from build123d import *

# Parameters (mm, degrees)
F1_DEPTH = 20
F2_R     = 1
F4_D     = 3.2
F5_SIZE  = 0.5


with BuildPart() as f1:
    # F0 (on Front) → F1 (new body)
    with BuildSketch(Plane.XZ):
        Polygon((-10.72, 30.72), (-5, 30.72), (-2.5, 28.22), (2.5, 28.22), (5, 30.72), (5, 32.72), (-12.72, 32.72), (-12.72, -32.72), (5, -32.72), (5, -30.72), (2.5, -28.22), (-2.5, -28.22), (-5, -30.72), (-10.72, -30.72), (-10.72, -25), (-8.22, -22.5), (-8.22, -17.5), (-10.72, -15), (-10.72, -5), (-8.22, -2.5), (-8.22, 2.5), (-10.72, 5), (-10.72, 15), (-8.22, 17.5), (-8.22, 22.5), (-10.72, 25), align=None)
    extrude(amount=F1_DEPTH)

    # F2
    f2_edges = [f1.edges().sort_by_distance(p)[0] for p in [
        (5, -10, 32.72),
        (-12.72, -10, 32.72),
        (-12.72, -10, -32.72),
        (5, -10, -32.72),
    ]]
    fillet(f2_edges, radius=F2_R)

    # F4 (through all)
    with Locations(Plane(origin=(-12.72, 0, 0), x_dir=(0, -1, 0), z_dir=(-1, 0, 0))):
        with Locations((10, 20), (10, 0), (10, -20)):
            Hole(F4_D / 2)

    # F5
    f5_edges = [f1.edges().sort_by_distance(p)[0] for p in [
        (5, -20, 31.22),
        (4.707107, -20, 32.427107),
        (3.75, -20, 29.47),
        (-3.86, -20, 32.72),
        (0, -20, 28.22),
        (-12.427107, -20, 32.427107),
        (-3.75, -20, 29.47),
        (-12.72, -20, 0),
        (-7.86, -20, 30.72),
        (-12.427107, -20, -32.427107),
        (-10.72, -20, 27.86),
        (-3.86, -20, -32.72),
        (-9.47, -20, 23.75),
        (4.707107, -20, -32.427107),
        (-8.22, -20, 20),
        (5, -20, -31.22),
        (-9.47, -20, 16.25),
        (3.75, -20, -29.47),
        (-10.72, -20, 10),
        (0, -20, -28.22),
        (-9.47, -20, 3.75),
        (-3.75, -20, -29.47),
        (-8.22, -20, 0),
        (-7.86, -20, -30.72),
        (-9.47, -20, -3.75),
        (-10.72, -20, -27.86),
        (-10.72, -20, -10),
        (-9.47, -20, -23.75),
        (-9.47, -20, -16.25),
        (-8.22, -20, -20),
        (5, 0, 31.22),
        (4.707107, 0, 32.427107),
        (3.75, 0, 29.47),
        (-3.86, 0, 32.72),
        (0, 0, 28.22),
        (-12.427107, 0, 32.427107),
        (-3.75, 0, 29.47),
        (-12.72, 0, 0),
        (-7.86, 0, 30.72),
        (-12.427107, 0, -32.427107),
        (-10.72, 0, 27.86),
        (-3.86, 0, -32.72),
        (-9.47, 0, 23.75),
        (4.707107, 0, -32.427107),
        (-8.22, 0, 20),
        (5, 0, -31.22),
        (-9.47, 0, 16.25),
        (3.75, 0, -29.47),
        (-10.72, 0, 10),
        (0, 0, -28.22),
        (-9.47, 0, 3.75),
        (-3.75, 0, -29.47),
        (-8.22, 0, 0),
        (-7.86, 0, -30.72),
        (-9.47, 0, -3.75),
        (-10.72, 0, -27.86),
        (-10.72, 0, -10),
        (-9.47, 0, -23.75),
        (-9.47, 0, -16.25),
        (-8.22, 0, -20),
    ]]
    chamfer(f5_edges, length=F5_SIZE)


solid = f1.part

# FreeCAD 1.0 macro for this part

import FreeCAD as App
import Part
import Sketcher

V = App.Vector
Q = App.Units.Quantity


def edges_at(feature, points):
    """Names of the edges that pass closest to the given points."""
    edges = feature.Shape.Edges
    near = lambda p: min(range(len(edges)), key=lambda i: edges[i].distToShape(Part.Vertex(*p))[0])
    return sorted({f"Edge{near(p) + 1}" for p in points})

doc = App.newDocument("Part")
body = doc.addObject("PartDesign::Body", "Body")

# Sketch on XZ plane
sketch1 = body.newObject("Sketcher::SketchObject", "Sketch")
sketch1.AttachmentSupport = (doc.getObject("XZ_Plane"), [""])
sketch1.MapMode = "FlatFace"
sketch1.addGeometry([
    Part.LineSegment(V(-10.7, 30.7, 0), V(-5, 30.7, 0)),  # 0
    Part.LineSegment(V(-5, 30.7, 0), V(-2.5, 28.2, 0)),  # 1
    Part.LineSegment(V(-2.5, 28.2, 0), V(2.5, 28.2, 0)),  # 2
    Part.LineSegment(V(2.5, 28.2, 0), V(5, 30.7, 0)),  # 3
    Part.LineSegment(V(5, 30.7, 0), V(5, 32.7, 0)),  # 4
    Part.LineSegment(V(5, 32.7, 0), V(-12.7, 32.7, 0)),  # 5
    Part.LineSegment(V(-12.7, 32.7, 0), V(-12.7, -32.7, 0)),  # 6
    Part.LineSegment(V(-12.7, -32.7, 0), V(5, -32.7, 0)),  # 7
    Part.LineSegment(V(5, -32.7, 0), V(5, -30.7, 0)),  # 8
    Part.LineSegment(V(5, -30.7, 0), V(2.5, -28.2, 0)),  # 9
    Part.LineSegment(V(2.5, -28.2, 0), V(-2.5, -28.2, 0)),  # 10
    Part.LineSegment(V(-2.5, -28.2, 0), V(-5, -30.7, 0)),  # 11
    Part.LineSegment(V(-5, -30.7, 0), V(-10.7, -30.7, 0)),  # 12
    Part.LineSegment(V(-10.7, -30.7, 0), V(-10.7, -25, 0)),  # 13
    Part.LineSegment(V(-10.7, -25, 0), V(-8.2, -22.5, 0)),  # 14
    Part.LineSegment(V(-8.2, -22.5, 0), V(-8.2, -17.5, 0)),  # 15
    Part.LineSegment(V(-8.2, -17.5, 0), V(-10.7, -15, 0)),  # 16
    Part.LineSegment(V(-10.7, -15, 0), V(-10.7, -5, 0)),  # 17
    Part.LineSegment(V(-10.7, -5, 0), V(-8.2, -2.5, 0)),  # 18
    Part.LineSegment(V(-8.2, -2.5, 0), V(-8.2, 2.5, 0)),  # 19
    Part.LineSegment(V(-8.2, 2.5, 0), V(-10.7, 5, 0)),  # 20
    Part.LineSegment(V(-10.7, 5, 0), V(-10.7, 15, 0)),  # 21
    Part.LineSegment(V(-10.7, 15, 0), V(-8.2, 17.5, 0)),  # 22
    Part.LineSegment(V(-8.2, 17.5, 0), V(-8.2, 22.5, 0)),  # 23
    Part.LineSegment(V(-8.2, 22.5, 0), V(-10.7, 25, 0)),  # 24
    Part.LineSegment(V(-10.7, 25, 0), V(-10.7, 30.7, 0)),  # 25
], False)
sketch1.addConstraint([
    Sketcher.Constraint("Coincident", 0, 2, 1, 1),
    Sketcher.Constraint("Coincident", 1, 2, 2, 1),
    Sketcher.Constraint("Coincident", 2, 2, 3, 1),
    Sketcher.Constraint("Coincident", 3, 2, 4, 1),
    Sketcher.Constraint("Coincident", 4, 2, 5, 1),
    Sketcher.Constraint("Coincident", 5, 2, 6, 1),
    Sketcher.Constraint("Coincident", 6, 2, 7, 1),
    Sketcher.Constraint("Coincident", 7, 2, 8, 1),
    Sketcher.Constraint("Coincident", 8, 2, 9, 1),
    Sketcher.Constraint("Coincident", 9, 2, 10, 1),
    Sketcher.Constraint("Coincident", 10, 2, 11, 1),
    Sketcher.Constraint("Coincident", 11, 2, 12, 1),
    Sketcher.Constraint("Coincident", 12, 2, 13, 1),
    Sketcher.Constraint("Coincident", 13, 2, 14, 1),
    Sketcher.Constraint("Coincident", 14, 2, 15, 1),
    Sketcher.Constraint("Coincident", 15, 2, 16, 1),
    Sketcher.Constraint("Coincident", 16, 2, 17, 1),
    Sketcher.Constraint("Coincident", 17, 2, 18, 1),
    Sketcher.Constraint("Coincident", 18, 2, 19, 1),
    Sketcher.Constraint("Coincident", 19, 2, 20, 1),
    Sketcher.Constraint("Coincident", 20, 2, 21, 1),
    Sketcher.Constraint("Coincident", 21, 2, 22, 1),
    Sketcher.Constraint("Coincident", 22, 2, 23, 1),
    Sketcher.Constraint("Coincident", 23, 2, 24, 1),
    Sketcher.Constraint("Coincident", 24, 2, 25, 1),
    Sketcher.Constraint("Coincident", 25, 2, 0, 1),
    Sketcher.Constraint("Horizontal", 0),
    Sketcher.Constraint("Horizontal", 2),
    Sketcher.Constraint("Vertical", 4),
    Sketcher.Constraint("Horizontal", 5),
    Sketcher.Constraint("Vertical", 6),
    Sketcher.Constraint("Horizontal", 7),
    Sketcher.Constraint("Vertical", 8),
    Sketcher.Constraint("Horizontal", 10),
    Sketcher.Constraint("Horizontal", 12),
    Sketcher.Constraint("Vertical", 13),
    Sketcher.Constraint("Vertical", 15),
    Sketcher.Constraint("Vertical", 17),
    Sketcher.Constraint("Vertical", 19),
    Sketcher.Constraint("Vertical", 21),
    Sketcher.Constraint("Vertical", 23),
    Sketcher.Constraint("Vertical", 25),
    Sketcher.Constraint("Symmetric", 0, 2, 8, 2, -1, 1),
    Sketcher.Constraint("Symmetric", 1, 2, 9, 2, -1, 1),
    Sketcher.Constraint("Symmetric", 3, 2, 11, 2, -1, 1),
    Sketcher.Constraint("Symmetric", 0, 2, 3, 2, -2),
    Sketcher.Constraint("Symmetric", 17, 2, 20, 2, -1),
    Sketcher.Constraint("Symmetric", 15, 2, 22, 2, -1),
    Sketcher.Constraint("Symmetric", 13, 2, 24, 2, -1),
    Sketcher.Constraint("Perpendicular", 1, 3),
    Sketcher.Constraint("Perpendicular", 9, 11),
    Sketcher.Constraint("Parallel", 11, 14),
    Sketcher.Constraint("Perpendicular", 14, 16),
    Sketcher.Constraint("Perpendicular", 16, 18),
    Sketcher.Constraint("Perpendicular", 18, 20),
    Sketcher.Constraint("Perpendicular", 20, 22),
    Sketcher.Constraint("Perpendicular", 22, 24),
    Sketcher.Constraint("Vertical", 2, 2, 9, 2),
    Sketcher.Constraint("Vertical", 13, 2, 16, 2),
    Sketcher.Constraint("Vertical", 15, 2, 18, 2),
    Sketcher.Constraint("Equal", 4, 8),
    Sketcher.Constraint("Equal", 12, 13),
    Sketcher.Constraint("Equal", 10, 15),
    Sketcher.Constraint("Equal", 15, 19),
    Sketcher.Constraint("Equal", 11, 14),
    Sketcher.Constraint("DistanceX", 2, 1, 2, 2, Q("5 mm")),
    Sketcher.Constraint("DistanceY", 4, 1, 4, 2, Q("2 mm")),
    Sketcher.Constraint("DistanceY", 17, 1, 17, 2, Q("10 mm")),
    Sketcher.Constraint("DistanceX", 0, 2, -1, 1, Q("5 mm")),
    Sketcher.Constraint("DistanceX", 6, 2, 12, 2, Q("2 mm")),
    Sketcher.Constraint("DistanceX", 0, 1, 0, 2, Q("5.72 mm")),
])
pad1 = body.newObject("PartDesign::Pad", "Pad")
pad1.Profile = sketch1
pad1.Length = 20
doc.recompute()

fillet = body.newObject("PartDesign::Fillet", "Fillet")
fillet.Base = (pad1, edges_at(pad1, [
    (5, -10, 32.72),
    (-12.72, -10, 32.72),
    (-12.72, -10, -32.72),
    (5, -10, -32.72),
]))
fillet.Radius = 1

# Sketch on YZ plane
sketch2 = body.newObject("Sketcher::SketchObject", "Sketch001")
sketch2.AttachmentSupport = (doc.getObject("YZ_Plane"), [""])
sketch2.MapMode = "FlatFace"
sketch2.AttachmentOffset = App.Placement(V(0, 0, -12.72), App.Rotation())
sketch2.addGeometry([
    Part.Circle(V(-10, 20, 0), V(0, 0, 1), 1.6),
    Part.Circle(V(-10, 0, 0), V(0, 0, 1), 1.6),
    Part.Circle(V(-10, -20, 0), V(0, 0, 1), 1.6),
], False)
sketch2.addConstraint([
    Sketcher.Constraint("Equal", 0, 1),
    Sketcher.Constraint("Equal", 1, 2),
    Sketcher.Constraint("Symmetric", 0, 3, 2, 3, -1),
    Sketcher.Constraint("PointOnObject", 1, 3, -1),
    Sketcher.Constraint("Vertical", 0, 3, 1, 3),
    Sketcher.Constraint("Diameter", 0, Q("3.2 mm")),
    Sketcher.Constraint("DistanceX", 0, 3, -1, 1, Q("10 mm")),
    Sketcher.Constraint("DistanceY", -1, 1, 0, 3, Q("20 mm")),
])
doc.recompute()
hole = body.newObject("PartDesign::Hole", "Hole")
hole.Profile = sketch2
hole.ThreadType = "None"
hole.Diameter = 3.2
hole.DepthType = "ThroughAll"
hole.Reversed = True
doc.recompute()

chamfer = body.newObject("PartDesign::Chamfer", "Chamfer")
chamfer.Base = (hole, edges_at(hole, [
    (5, -20, 31.22),
    (4.707, -20, 32.427),
    (3.75, -20, 29.47),
    (-3.86, -20, 32.72),
    (0, -20, 28.22),
    (-12.427, -20, 32.427),
    (-3.75, -20, 29.47),
    (-12.72, -20, 0),
    (-7.86, -20, 30.72),
    (-12.427, -20, -32.427),
    (-10.72, -20, 27.86),
    (-3.86, -20, -32.72),
    (-9.47, -20, 23.75),
    (4.707, -20, -32.427),
    (-8.22, -20, 20),
    (5, -20, -31.22),
    (-9.47, -20, 16.25),
    (3.75, -20, -29.47),
    (-10.72, -20, 10),
    (0, -20, -28.22),
    (-9.47, -20, 3.75),
    (-3.75, -20, -29.47),
    (-8.22, -20, 0),
    (-7.86, -20, -30.72),
    (-9.47, -20, -3.75),
    (-10.72, -20, -27.86),
    (-10.72, -20, -10),
    (-9.47, -20, -23.75),
    (-9.47, -20, -16.25),
    (-8.22, -20, -20),
    (5, 0, 31.22),
    (4.707, 0, 32.427),
    (3.75, 0, 29.47),
    (-3.86, 0, 32.72),
    (0, 0, 28.22),
    (-12.427, 0, 32.427),
    (-3.75, 0, 29.47),
    (-12.72, 0, 0),
    (-7.86, 0, 30.72),
    (-12.427, 0, -32.427),
    (-10.72, 0, 27.86),
    (-3.86, 0, -32.72),
    (-9.47, 0, 23.75),
    (4.707, 0, -32.427),
    (-8.22, 0, 20),
    (5, 0, -31.22),
    (-9.47, 0, 16.25),
    (3.75, 0, -29.47),
    (-10.72, 0, 10),
    (0, 0, -28.22),
    (-9.47, 0, 3.75),
    (-3.75, 0, -29.47),
    (-8.22, 0, 0),
    (-7.86, 0, -30.72),
    (-9.47, 0, -3.75),
    (-10.72, 0, -27.86),
    (-10.72, 0, -10),
    (-9.47, 0, -23.75),
    (-9.47, 0, -16.25),
    (-8.22, 0, -20),
]))
chamfer.Size = 0.5

doc.recompute()
